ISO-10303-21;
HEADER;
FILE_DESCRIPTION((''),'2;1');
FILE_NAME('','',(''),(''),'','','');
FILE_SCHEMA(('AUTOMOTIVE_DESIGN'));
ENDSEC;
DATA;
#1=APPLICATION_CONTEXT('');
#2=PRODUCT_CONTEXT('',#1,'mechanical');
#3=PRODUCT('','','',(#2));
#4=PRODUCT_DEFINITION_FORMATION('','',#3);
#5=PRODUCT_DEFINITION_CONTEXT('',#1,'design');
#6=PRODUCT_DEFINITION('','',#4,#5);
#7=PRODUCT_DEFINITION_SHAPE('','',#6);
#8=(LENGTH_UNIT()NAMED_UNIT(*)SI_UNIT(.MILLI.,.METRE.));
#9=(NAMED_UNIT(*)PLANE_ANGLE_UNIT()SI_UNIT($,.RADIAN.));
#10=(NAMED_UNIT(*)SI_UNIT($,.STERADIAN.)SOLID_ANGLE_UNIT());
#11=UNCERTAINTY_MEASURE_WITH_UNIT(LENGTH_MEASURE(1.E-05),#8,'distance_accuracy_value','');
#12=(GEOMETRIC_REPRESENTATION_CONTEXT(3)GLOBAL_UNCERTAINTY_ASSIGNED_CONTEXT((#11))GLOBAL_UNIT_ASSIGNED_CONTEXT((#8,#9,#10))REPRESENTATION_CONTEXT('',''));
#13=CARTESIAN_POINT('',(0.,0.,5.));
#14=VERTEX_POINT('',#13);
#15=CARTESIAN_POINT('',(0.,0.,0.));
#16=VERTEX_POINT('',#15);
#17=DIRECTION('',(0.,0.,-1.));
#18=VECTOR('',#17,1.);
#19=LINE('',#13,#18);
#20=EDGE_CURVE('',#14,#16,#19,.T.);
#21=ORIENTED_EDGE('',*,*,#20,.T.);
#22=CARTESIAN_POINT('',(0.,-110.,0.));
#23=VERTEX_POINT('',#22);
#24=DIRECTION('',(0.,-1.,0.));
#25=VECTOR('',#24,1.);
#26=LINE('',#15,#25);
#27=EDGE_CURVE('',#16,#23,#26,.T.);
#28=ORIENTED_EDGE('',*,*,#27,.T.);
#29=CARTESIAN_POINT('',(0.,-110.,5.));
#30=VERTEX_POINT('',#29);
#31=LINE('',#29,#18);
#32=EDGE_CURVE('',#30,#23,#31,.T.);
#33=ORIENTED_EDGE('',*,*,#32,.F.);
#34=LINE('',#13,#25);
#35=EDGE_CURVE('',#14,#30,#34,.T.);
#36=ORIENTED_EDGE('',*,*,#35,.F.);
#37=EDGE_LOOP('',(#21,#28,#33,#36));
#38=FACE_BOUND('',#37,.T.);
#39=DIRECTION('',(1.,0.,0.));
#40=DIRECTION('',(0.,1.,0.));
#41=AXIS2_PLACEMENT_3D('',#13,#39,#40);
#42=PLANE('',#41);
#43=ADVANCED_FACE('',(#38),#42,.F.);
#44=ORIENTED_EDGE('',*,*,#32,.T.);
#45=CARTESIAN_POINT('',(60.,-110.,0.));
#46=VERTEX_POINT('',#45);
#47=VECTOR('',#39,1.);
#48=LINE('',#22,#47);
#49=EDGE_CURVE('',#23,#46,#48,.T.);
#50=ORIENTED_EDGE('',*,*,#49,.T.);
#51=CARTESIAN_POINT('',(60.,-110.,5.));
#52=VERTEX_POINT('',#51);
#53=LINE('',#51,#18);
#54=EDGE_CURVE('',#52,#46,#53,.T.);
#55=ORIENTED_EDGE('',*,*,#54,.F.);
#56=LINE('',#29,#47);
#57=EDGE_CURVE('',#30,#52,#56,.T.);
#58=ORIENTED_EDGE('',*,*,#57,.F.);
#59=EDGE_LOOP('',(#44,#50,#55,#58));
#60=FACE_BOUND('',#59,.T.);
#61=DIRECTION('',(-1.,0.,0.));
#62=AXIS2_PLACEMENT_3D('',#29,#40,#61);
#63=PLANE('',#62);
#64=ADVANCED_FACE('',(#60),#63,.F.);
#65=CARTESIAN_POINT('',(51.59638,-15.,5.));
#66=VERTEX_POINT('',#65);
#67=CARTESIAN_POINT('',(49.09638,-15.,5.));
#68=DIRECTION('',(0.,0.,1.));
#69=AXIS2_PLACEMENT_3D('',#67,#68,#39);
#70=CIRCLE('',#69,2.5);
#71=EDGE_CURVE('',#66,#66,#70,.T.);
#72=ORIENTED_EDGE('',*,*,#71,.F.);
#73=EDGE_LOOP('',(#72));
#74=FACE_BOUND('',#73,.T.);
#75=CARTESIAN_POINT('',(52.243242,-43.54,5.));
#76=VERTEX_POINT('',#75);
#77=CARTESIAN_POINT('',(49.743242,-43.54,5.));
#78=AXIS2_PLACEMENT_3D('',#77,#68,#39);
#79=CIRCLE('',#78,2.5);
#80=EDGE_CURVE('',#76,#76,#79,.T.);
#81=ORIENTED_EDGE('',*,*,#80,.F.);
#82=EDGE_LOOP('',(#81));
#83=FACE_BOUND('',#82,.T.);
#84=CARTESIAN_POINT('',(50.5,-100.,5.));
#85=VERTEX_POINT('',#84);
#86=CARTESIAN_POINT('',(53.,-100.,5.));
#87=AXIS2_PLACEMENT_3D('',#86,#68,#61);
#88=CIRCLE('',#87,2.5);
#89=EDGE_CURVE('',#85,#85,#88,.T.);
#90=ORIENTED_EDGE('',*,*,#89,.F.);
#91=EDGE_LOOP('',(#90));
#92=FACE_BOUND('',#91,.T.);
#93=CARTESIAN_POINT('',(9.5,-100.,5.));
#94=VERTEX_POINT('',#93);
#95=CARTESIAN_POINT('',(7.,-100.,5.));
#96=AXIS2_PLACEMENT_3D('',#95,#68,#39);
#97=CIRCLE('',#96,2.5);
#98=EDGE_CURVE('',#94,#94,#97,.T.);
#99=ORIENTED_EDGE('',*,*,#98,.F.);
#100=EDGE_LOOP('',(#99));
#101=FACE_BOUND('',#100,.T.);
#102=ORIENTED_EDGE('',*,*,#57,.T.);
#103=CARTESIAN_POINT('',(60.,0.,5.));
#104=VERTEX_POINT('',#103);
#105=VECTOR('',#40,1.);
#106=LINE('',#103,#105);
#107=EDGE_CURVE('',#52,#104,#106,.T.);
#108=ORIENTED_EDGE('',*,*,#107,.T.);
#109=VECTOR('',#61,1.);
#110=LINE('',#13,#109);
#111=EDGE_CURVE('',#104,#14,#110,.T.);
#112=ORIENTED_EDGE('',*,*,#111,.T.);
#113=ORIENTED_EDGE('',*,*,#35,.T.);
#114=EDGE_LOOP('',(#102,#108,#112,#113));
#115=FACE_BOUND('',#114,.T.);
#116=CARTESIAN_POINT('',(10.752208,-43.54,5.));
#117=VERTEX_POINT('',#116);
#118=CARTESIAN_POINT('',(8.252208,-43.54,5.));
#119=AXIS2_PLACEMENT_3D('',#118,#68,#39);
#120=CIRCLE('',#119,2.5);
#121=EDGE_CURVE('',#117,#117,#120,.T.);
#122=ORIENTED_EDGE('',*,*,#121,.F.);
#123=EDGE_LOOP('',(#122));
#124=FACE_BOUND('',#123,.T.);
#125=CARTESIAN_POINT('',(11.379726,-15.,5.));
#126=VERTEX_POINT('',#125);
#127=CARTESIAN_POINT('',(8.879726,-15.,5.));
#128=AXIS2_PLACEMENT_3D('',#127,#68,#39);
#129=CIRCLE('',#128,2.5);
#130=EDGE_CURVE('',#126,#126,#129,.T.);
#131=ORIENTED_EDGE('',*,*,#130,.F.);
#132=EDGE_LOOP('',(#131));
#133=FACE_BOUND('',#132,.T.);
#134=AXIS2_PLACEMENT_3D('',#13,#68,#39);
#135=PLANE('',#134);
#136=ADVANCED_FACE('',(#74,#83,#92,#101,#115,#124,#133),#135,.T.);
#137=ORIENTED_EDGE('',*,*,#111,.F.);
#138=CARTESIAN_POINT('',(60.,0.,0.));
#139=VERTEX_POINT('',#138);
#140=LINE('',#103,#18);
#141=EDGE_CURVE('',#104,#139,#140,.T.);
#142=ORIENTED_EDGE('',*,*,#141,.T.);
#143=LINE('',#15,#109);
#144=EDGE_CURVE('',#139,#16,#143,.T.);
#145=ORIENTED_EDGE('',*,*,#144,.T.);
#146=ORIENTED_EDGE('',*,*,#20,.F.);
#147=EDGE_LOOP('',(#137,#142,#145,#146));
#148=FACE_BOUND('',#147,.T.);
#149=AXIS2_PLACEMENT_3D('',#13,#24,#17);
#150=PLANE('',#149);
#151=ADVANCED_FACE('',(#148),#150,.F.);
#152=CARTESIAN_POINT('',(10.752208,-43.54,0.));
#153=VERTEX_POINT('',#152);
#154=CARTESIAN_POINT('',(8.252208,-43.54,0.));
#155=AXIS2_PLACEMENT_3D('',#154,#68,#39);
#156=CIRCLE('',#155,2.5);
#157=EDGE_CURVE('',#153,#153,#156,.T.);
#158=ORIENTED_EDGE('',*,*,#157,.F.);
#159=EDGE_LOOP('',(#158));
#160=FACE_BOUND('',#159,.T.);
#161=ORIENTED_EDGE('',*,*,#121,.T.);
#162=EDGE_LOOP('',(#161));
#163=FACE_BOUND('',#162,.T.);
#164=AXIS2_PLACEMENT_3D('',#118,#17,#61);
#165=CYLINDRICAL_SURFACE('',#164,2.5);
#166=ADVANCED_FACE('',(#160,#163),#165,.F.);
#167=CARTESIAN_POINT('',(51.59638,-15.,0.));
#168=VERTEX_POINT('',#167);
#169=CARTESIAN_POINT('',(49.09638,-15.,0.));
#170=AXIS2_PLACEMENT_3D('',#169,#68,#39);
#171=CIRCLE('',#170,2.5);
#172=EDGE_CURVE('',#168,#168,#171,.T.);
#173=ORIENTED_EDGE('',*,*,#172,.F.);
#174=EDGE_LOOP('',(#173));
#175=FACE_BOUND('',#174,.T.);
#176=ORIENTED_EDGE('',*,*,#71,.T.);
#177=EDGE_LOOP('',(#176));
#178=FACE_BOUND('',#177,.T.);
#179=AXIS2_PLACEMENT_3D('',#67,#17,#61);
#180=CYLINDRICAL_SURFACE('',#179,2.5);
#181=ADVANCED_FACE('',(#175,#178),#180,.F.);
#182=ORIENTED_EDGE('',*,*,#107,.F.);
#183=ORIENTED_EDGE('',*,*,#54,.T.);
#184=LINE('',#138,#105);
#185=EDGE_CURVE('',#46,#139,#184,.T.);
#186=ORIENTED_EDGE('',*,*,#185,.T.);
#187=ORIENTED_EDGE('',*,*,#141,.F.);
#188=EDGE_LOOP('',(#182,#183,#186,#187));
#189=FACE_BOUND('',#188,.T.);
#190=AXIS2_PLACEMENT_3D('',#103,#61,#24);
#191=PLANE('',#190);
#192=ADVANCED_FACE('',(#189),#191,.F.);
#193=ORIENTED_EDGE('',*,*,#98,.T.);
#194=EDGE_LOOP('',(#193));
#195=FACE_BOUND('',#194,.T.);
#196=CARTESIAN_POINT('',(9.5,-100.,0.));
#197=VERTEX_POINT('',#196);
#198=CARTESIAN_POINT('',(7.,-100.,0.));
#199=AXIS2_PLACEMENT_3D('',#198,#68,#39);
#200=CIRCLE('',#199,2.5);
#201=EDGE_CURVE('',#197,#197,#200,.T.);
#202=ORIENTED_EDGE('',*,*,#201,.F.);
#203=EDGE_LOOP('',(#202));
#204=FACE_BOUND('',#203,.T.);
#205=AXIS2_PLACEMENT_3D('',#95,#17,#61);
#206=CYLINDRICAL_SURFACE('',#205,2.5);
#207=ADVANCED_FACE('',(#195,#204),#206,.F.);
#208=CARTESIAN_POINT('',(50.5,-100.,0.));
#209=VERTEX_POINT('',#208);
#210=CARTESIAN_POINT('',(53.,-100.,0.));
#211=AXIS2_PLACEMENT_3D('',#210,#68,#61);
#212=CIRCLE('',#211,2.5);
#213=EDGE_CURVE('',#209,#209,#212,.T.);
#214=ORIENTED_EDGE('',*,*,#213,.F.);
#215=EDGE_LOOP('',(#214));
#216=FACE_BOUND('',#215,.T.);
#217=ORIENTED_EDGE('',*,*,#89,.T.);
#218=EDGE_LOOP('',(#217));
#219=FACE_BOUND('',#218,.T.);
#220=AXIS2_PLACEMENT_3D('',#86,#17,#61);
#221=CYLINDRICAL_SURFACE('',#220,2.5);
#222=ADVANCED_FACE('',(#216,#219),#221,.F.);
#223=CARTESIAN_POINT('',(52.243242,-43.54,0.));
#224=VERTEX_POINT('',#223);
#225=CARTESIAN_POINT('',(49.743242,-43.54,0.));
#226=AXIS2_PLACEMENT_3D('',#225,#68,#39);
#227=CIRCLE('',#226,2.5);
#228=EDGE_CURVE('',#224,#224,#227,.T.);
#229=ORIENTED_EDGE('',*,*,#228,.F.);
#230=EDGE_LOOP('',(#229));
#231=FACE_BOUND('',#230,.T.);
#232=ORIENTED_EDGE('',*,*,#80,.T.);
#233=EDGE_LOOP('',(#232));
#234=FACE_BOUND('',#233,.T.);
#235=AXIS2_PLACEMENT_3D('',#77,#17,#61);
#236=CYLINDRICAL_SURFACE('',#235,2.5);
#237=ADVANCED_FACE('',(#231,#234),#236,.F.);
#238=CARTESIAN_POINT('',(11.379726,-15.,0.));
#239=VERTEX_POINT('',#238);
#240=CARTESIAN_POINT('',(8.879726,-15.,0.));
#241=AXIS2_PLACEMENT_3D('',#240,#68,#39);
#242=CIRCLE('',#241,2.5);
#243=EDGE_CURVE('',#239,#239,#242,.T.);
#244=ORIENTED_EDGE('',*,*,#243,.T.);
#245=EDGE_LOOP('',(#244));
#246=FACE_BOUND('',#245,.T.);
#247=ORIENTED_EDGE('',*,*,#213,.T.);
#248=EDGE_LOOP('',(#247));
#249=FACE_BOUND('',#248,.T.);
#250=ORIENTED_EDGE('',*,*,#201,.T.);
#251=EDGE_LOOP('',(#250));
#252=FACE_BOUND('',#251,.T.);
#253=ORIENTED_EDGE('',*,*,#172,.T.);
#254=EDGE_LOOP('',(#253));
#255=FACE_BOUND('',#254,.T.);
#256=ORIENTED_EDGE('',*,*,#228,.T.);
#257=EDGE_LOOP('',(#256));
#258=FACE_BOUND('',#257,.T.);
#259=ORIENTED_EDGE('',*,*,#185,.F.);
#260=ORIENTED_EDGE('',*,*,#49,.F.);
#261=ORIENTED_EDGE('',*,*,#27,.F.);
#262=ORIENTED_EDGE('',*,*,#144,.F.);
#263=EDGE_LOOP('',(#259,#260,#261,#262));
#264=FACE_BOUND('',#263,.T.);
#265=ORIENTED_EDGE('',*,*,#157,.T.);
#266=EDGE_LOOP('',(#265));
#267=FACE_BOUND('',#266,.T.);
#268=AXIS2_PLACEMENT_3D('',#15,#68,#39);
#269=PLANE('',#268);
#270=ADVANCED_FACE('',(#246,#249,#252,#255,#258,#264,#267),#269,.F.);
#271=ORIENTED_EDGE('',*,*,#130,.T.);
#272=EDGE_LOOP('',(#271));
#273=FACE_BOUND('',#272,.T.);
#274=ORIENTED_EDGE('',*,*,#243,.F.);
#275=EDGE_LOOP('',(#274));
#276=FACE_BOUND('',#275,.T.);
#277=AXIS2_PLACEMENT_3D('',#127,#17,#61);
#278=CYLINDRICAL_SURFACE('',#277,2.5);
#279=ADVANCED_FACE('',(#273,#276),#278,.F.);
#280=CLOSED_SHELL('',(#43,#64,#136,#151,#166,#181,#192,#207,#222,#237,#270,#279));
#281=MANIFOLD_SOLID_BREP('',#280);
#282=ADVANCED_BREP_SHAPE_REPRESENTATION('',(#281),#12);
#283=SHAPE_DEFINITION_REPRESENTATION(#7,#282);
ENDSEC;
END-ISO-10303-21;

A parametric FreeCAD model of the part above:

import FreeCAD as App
import Part
import Sketcher


def add_polygon(sketch, points):
    """Adds a closed chain of lines whose ends are joined by coincident constraints."""
    first, n = sketch.GeometryCount, len(points)
    for a, b in zip(points, points[1:] + points[:1]):
        sketch.addGeometry(Part.LineSegment(App.Vector(*a, 0), App.Vector(*b, 0)), False)
    for i in range(n):
        sketch.addConstraint(Sketcher.Constraint("Coincident", first + i, 2, first + (i + 1) % n, 1))

doc = App.newDocument("Part")
body = doc.addObject("PartDesign::Body", "Body")

# Sketch on XY plane
sketch1 = doc.addObject("Sketcher::SketchObject", "Sketch")
body.addObject(sketch1)
sketch1.AttachmentSupport = (doc.XY_Plane, [""])
sketch1.MapMode = "FlatFace"
add_polygon(sketch1, [(0, 0), (0, -110), (60, -110), (60, 0)])  # lines 0-3
sketch1.addGeometry(Part.Circle(App.Vector(7, -100, 0), App.Vector(0, 0, 1), 2.5), False)  # 4
sketch1.addGeometry(Part.Circle(App.Vector(53, -100, 0), App.Vector(0, 0, 1), 2.5), False)  # 5
sketch1.addGeometry(Part.Circle(App.Vector(8.252208, -43.54, 0), App.Vector(0, 0, 1), 2.5), False)  # 6
sketch1.addGeometry(Part.Circle(App.Vector(8.879726, -15, 0), App.Vector(0, 0, 1), 2.5), False)  # 7
sketch1.addGeometry(Part.Circle(App.Vector(49.743242, -43.54, 0), App.Vector(0, 0, 1), 2.5), False)  # 8
sketch1.addGeometry(Part.Circle(App.Vector(49.09638, -15, 0), App.Vector(0, 0, 1), 2.5), False)  # 9
sketch1.addConstraint(Sketcher.Constraint("Vertical", 0))
sketch1.addConstraint(Sketcher.Constraint("Horizontal", 1))
sketch1.addConstraint(Sketcher.Constraint("Vertical", 2))
sketch1.addConstraint(Sketcher.Constraint("Horizontal", 3))
sketch1.addConstraint(Sketcher.Constraint("Coincident", 3, 2, -1, 1))
sketch1.addConstraint(Sketcher.Constraint("Equal", 4, 5))
sketch1.addConstraint(Sketcher.Constraint("Equal", 5, 6))
sketch1.addConstraint(Sketcher.Constraint("Equal", 6, 7))
sketch1.addConstraint(Sketcher.Constraint("Equal", 7, 8))
sketch1.addConstraint(Sketcher.Constraint("Equal", 8, 9))
sketch1.addConstraint(Sketcher.Constraint("Horizontal", 4, 3, 5, 3))
sketch1.addConstraint(Sketcher.Constraint("Horizontal", 6, 3, 8, 3))
sketch1.addConstraint(Sketcher.Constraint("Horizontal", 7, 3, 9, 3))
sketch1.addConstraint(Sketcher.Constraint("Diameter", 4, 5.0))
sketch1.addConstraint(Sketcher.Constraint("DistanceX", 1, 1, 1, 2, 60.0))
sketch1.addConstraint(Sketcher.Constraint("DistanceY", 0, 2, 0, 1, 110.0))
sketch1.addConstraint(Sketcher.Constraint("DistanceX", -1, 1, 4, 3, 7.0))
sketch1.addConstraint(Sketcher.Constraint("DistanceY", 4, 3, -1, 1, 100.0))
sketch1.addConstraint(Sketcher.Constraint("DistanceX", -1, 1, 5, 3, 53.0))
sketch1.addConstraint(Sketcher.Constraint("DistanceY", 7, 3, -1, 1, 15.0))
sketch1.addConstraint(Sketcher.Constraint("DistanceY", 6, 3, -1, 1, 43.54))
sketch1.addConstraint(Sketcher.Constraint("DistanceX", -1, 1, 9, 3, 49.09638))
sketch1.addConstraint(Sketcher.Constraint("DistanceX", 6, 3, 7, 3, 0.627519))
sketch1.addConstraint(Sketcher.Constraint("DistanceX", -1, 1, 6, 3, 8.252208))
sketch1.addConstraint(Sketcher.Constraint("DistanceX", -1, 1, 8, 3, 49.743242))
pad1 = doc.addObject("PartDesign::Pad", "Pad")
body.addObject(pad1)
pad1.Profile = sketch1
pad1.Length = 5

doc.recompute()
